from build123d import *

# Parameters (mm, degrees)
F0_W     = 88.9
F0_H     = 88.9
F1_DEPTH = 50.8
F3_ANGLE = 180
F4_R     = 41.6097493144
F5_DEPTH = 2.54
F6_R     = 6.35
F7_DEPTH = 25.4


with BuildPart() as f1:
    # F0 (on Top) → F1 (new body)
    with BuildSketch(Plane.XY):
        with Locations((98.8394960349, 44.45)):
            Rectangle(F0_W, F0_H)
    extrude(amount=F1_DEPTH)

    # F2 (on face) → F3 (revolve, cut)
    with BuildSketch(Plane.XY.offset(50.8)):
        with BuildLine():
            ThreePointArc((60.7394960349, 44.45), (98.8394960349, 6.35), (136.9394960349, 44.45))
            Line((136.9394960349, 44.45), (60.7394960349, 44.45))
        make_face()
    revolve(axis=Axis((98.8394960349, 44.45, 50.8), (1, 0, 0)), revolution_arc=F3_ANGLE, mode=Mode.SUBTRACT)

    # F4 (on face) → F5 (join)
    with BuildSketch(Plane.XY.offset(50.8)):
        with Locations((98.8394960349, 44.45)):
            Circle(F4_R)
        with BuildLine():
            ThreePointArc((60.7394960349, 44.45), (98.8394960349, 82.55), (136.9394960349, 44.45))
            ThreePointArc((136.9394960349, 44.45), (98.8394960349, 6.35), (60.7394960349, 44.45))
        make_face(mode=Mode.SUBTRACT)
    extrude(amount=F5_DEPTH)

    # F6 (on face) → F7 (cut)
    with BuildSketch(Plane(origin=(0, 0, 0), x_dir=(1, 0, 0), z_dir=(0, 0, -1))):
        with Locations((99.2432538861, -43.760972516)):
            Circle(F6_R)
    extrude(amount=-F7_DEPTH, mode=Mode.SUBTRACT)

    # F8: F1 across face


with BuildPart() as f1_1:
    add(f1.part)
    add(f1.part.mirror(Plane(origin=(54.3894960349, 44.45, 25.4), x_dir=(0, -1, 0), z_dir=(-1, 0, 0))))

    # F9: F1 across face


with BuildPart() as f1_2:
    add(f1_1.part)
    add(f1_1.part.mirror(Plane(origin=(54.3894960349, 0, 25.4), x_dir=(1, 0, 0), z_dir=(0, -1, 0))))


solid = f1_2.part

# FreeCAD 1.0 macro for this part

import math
import FreeCAD as App
import Part
import Sketcher
from FreeCAD import Vector
Q = App.Units.Quantity


def add_polygon(sketch, points):
    """Adds a closed chain of lines whose ends are joined by coincident constraints."""
    first, n = sketch.GeometryCount, len(points)
    for a, b in zip(points, points[1:] + points[:1]):
        sketch.addGeometry(Part.LineSegment(App.Vector(*a, 0), App.Vector(*b, 0)), False)
    for i in range(n):
        sketch.addConstraint(Sketcher.Constraint("Coincident", first + i, 2, first + (i + 1) % n, 1))

doc = App.newDocument("Part")
body = doc.addObject("PartDesign::Body", "Body")

# Sketch on XY plane
sketch1 = body.newObject("Sketcher::SketchObject", "Sketch")
sketch1.AttachmentSupport = (doc.getObject("XY_Plane"), [""])
sketch1.MapMode = "FlatFace"
add_polygon(sketch1, [(54.389496, 88.9), (54.389496, 0), (143.289496, 0), (143.289496, 88.9)])  # lines 0-3
sketch1.addConstraint([
    Sketcher.Constraint("Vertical", 0),
    Sketcher.Constraint("Horizontal", 1),
    Sketcher.Constraint("Vertical", 2),
    Sketcher.Constraint("Horizontal", 3),
    Sketcher.Constraint("PointOnObject", 0, 2, -1),
    Sketcher.Constraint("Equal", 3, 0),
    Sketcher.Constraint("DistanceX", 1, 1, 1, 2, Q("3.5 in")),
    Sketcher.Constraint("DistanceX", -1, 1, 0, 2, Q("54.389496 mm")),
])
pad1 = body.newObject("PartDesign::Pad", "Pad")
pad1.Profile = sketch1
pad1.Length = Q("2 in")

# Sketch on XY plane
sketch2 = body.newObject("Sketcher::SketchObject", "Sketch001")
sketch2.AttachmentSupport = (doc.getObject("XY_Plane"), [""])
sketch2.MapMode = "FlatFace"
sketch2.AttachmentOffset = App.Placement(Vector(0, 0, 2 * 25.4), App.Rotation())
sketch2.addGeometry([
    Part.ArcOfCircle(Part.Circle(Vector(98.839496, 44.45, 0), Vector(0, 0, 1), 38.1), math.radians(180), math.radians(360)),
    Part.LineSegment(Vector(136.939496, 44.45, 0), Vector(60.739496, 44.45, 0)),
], False)
sketch2.addGeometry(Part.LineSegment(Vector(60.739496, 44.45, 0), Vector(136.939496, 44.45, 0)), True)  # axis
sketch2.addConstraint([
    Sketcher.Constraint("Coincident", 0, 1, 1, 2),
    Sketcher.Constraint("Coincident", 1, 1, 0, 2),
    Sketcher.Constraint("Horizontal", 1),
    Sketcher.Constraint("Horizontal", 2),
    Sketcher.Constraint("Coincident", 2, 1, 0, 1),
    Sketcher.Constraint("Equal", 1, 2),
    Sketcher.Constraint("Radius", 0, Q("1.5 in")),
    Sketcher.Constraint("DistanceY", -1, 1, 0, 3, Q("1.75 in")),
    Sketcher.Constraint("DistanceY", -1, 1, 0, 1, Q("1.75 in")),
    Sketcher.Constraint("DistanceX", -1, 1, 0, 3, Q("98.839496 mm")),
])
groove = body.newObject("PartDesign::Groove", "Groove")
groove.Profile = sketch2
groove.ReferenceAxis = (sketch2, ["Axis0"])
groove.Angle = 180

# Sketch on XY plane
sketch3 = body.newObject("Sketcher::SketchObject", "Sketch002")
sketch3.AttachmentSupport = (doc.getObject("XY_Plane"), [""])
sketch3.MapMode = "FlatFace"
sketch3.AttachmentOffset = App.Placement(Vector(0, 0, 2 * 25.4), App.Rotation())
sketch3.addGeometry([
    Part.Circle(Vector(98.839496, 44.45, 0), Vector(0, 0, 1), 41.609749),
    Part.Circle(Vector(98.839496, 44.45, 0), Vector(0, 0, 1), 38.1),
], False)
sketch3.addConstraint([
    Sketcher.Constraint("Coincident", 1, 3, 0, 3),
    Sketcher.Constraint("Diameter", 1, Q("3 in")),
    Sketcher.Constraint("Diameter", 0, Q("83.219499 mm")),
    Sketcher.Constraint("DistanceY", -1, 1, 0, 3, Q("1.75 in")),
    Sketcher.Constraint("DistanceX", -1, 1, 0, 3, Q("98.839496 mm")),
])
pad2 = body.newObject("PartDesign::Pad", "Pad001")
pad2.Profile = sketch3
pad2.Length = Q("0.1 in")

# Sketch on XY plane
sketch4 = body.newObject("Sketcher::SketchObject", "Sketch003")
sketch4.AttachmentSupport = (doc.getObject("XY_Plane"), [""])
sketch4.MapMode = "FlatFace"
sketch4.addGeometry(Part.Circle(Vector(99.243254, 43.760973, 0), Vector(0, 0, 1), 6.35), False)
sketch4.addConstraint([
    Sketcher.Constraint("Diameter", 0, Q("0.5 in")),
    Sketcher.Constraint("DistanceX", -1, 1, 0, 3, Q("99.243254 mm")),
    Sketcher.Constraint("DistanceY", -1, 1, 0, 3, Q("43.760973 mm")),
])
pocket1 = body.newObject("PartDesign::Pocket", "Pocket")
pocket1.Profile = sketch4
pocket1.Length = Q("1 in")
pocket1.Reversed = True
body2 = doc.addObject("PartDesign::Body", "Body001")
doc.recompute()

body2.BaseFeature = body
doc.recompute()

mirroring = doc.addObject("Part::Mirroring", "Mirroring")
mirroring.Source = body
mirroring.Base = Vector(54.389496, 44.45, 25.4)
mirroring.Normal = Vector(-1, 0, 0)
body3 = doc.addObject("PartDesign::Body", "Body002")
body3.BaseFeature = mirroring
boolean = body2.newObject("PartDesign::Boolean", "Boolean")
boolean.Type = "Fuse"
boolean.addObjects([body3])
doc.recompute()
body4 = doc.addObject("PartDesign::Body", "Body003")
doc.recompute()

body4.BaseFeature = body2
doc.recompute()

mirroring2 = doc.addObject("Part::Mirroring", "Mirroring001")
mirroring2.Source = body2
mirroring2.Base = Vector(54.389496, 0, 25.4)
mirroring2.Normal = Vector(0, -1, 0)
body5 = doc.addObject("PartDesign::Body", "Body004")
body5.BaseFeature = mirroring2
boolean2 = body4.newObject("PartDesign::Boolean", "Boolean001")
boolean2.Type = "Fuse"
boolean2.addObjects([body5])
doc.recompute()
mirroring.Visibility = False
mirroring2.Visibility = False

doc.recompute()
